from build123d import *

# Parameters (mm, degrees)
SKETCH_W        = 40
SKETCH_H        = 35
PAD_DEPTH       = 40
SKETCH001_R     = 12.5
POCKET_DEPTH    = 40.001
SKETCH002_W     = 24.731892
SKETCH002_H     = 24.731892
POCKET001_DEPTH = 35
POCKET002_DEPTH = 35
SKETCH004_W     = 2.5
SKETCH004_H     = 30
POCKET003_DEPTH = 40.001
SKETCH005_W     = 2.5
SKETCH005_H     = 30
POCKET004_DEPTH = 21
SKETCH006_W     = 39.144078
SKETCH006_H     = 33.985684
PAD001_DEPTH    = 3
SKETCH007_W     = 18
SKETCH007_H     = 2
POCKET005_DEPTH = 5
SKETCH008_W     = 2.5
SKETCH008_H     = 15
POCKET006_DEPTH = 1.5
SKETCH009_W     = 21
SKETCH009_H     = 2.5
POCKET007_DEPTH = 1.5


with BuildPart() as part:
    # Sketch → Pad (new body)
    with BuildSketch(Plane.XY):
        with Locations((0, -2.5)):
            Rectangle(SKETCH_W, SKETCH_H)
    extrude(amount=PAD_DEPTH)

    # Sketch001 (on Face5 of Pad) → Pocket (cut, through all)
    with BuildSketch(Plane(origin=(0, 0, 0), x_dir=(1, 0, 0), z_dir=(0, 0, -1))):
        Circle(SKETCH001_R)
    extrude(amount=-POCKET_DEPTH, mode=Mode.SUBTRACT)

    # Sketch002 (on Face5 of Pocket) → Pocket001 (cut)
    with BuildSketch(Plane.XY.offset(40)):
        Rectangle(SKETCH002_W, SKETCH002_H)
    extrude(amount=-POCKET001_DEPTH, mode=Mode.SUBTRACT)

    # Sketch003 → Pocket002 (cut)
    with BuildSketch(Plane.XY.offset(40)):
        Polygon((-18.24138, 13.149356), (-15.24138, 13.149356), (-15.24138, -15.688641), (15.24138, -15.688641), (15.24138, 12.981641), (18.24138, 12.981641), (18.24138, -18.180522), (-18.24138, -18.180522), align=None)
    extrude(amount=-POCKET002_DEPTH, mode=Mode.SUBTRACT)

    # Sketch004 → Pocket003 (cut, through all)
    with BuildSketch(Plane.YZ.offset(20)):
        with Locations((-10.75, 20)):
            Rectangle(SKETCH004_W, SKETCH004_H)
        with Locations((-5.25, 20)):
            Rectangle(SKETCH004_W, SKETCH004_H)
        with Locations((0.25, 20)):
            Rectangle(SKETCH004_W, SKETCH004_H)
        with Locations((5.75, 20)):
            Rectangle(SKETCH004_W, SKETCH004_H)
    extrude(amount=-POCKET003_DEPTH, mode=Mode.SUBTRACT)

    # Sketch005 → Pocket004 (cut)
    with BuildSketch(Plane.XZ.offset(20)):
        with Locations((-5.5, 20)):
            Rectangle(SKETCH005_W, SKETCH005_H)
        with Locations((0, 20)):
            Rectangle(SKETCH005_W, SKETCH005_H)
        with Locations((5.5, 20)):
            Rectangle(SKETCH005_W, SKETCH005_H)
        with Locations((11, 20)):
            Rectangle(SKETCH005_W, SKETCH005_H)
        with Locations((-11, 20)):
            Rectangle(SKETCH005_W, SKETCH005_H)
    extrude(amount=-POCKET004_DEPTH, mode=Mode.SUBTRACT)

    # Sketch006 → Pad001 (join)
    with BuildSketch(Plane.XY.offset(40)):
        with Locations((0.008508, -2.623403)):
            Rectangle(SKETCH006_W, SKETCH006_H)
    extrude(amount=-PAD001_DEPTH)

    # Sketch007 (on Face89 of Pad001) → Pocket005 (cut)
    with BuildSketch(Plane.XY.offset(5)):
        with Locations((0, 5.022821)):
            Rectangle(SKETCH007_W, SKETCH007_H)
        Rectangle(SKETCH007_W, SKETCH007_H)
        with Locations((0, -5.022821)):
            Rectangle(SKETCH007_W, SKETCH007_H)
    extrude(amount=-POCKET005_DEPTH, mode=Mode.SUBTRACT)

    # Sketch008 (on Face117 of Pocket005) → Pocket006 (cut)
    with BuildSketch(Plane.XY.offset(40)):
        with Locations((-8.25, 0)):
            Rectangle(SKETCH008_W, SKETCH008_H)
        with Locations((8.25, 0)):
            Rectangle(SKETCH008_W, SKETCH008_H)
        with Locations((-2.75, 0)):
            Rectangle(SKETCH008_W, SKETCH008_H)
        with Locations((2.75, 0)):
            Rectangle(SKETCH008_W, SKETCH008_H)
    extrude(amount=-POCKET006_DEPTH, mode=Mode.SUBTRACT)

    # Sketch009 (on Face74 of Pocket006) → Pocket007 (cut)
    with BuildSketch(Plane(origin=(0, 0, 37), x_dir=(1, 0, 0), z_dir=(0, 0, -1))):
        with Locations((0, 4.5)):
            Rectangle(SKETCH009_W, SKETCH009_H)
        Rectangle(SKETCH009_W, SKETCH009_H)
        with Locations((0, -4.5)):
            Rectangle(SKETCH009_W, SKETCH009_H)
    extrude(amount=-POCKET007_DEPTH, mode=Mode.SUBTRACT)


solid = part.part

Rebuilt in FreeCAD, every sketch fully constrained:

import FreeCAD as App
import Part
import Sketcher
from FreeCAD import Vector
Q = App.Units.Quantity


def add_polygon(sketch, points):
    """Adds a closed chain of lines whose ends are joined by coincident constraints."""
    first, n = sketch.GeometryCount, len(points)
    for a, b in zip(points, points[1:] + points[:1]):
        sketch.addGeometry(Part.LineSegment(App.Vector(*a, 0), App.Vector(*b, 0)), False)
    for i in range(n):
        sketch.addConstraint(Sketcher.Constraint("Coincident", first + i, 2, first + (i + 1) % n, 1))

doc = App.newDocument("Part")
body = doc.addObject("PartDesign::Body", "Body")

# Sketch on XY plane
sketch1 = body.newObject("Sketcher::SketchObject", "Sketch")
sketch1.AttachmentSupport = (doc.getObject("XY_Plane"), [""])
sketch1.MapMode = "FlatFace"
add_polygon(sketch1, [(-20, 15), (-20, -20), (20, -20), (20, 15)])  # lines 0-3
sketch1.addConstraint([
    Sketcher.Constraint("Vertical", 0),
    Sketcher.Constraint("Horizontal", 1),
    Sketcher.Constraint("Vertical", 2),
    Sketcher.Constraint("Horizontal", 3),
    Sketcher.Constraint("DistanceX", 1, 1, 1, 2, Q("40 mm")),
    Sketcher.Constraint("DistanceY", 0, 2, 0, 1, Q("35 mm")),
    Sketcher.Constraint("DistanceX", 0, 2, -1, 1, Q("20 mm")),
    Sketcher.Constraint("DistanceY", 0, 2, -1, 1, Q("20 mm")),
])
pad1 = body.newObject("PartDesign::Pad", "Pad")
pad1.Profile = sketch1
pad1.Length = 40

# Sketch on XY plane
sketch2 = body.newObject("Sketcher::SketchObject", "Sketch001")
sketch2.AttachmentSupport = (doc.getObject("XY_Plane"), [""])
sketch2.MapMode = "FlatFace"
sketch2.addGeometry(Part.Circle(Vector(0, 0, 0), Vector(0, 0, 1), 12.5), False)
sketch2.addConstraint([
    Sketcher.Constraint("Coincident", 0, 3, -1, 1),
    Sketcher.Constraint("Diameter", 0, Q("25 mm")),
])
pocket1 = body.newObject("PartDesign::Pocket", "Pocket")
pocket1.Profile = sketch2
pocket1.Type = "ThroughAll"
pocket1.Reversed = True

# Sketch on XY plane
sketch3 = body.newObject("Sketcher::SketchObject", "Sketch002")
sketch3.AttachmentSupport = (doc.getObject("XY_Plane"), [""])
sketch3.MapMode = "FlatFace"
sketch3.AttachmentOffset = App.Placement(Vector(0, 0, 40), App.Rotation())
add_polygon(sketch3, [(-12.365946, 12.365946), (-12.365946, -12.365946), (12.365946, -12.365946), (12.365946, 12.365946)])  # lines 0-3
sketch3.addConstraint([
    Sketcher.Constraint("Vertical", 0),
    Sketcher.Constraint("Horizontal", 1),
    Sketcher.Constraint("Vertical", 2),
    Sketcher.Constraint("Horizontal", 3),
    Sketcher.Constraint("Symmetric", 0, 2, 2, 2, -1, 1),
    Sketcher.Constraint("Equal", 3, 0),
    Sketcher.Constraint("DistanceX", 1, 1, 1, 2, Q("24.731892 mm")),
])
pocket2 = body.newObject("PartDesign::Pocket", "Pocket001")
pocket2.Profile = sketch3
pocket2.Length = 35

# Sketch on XY plane
sketch4 = body.newObject("Sketcher::SketchObject", "Sketch003")
sketch4.AttachmentSupport = (doc.getObject("XY_Plane"), [""])
sketch4.MapMode = "FlatFace"
sketch4.AttachmentOffset = App.Placement(Vector(0, 0, 40), App.Rotation())
add_polygon(sketch4, [(-15.24138, 13.149356), (-18.24138, 13.149356), (-18.24138, -18.180522), (18.24138, -18.180522), (18.24138, 12.981641), (15.24138, 12.981641), (15.24138, -15.688641), (-15.24138, -15.688641)])  # lines 0-7
sketch4.addConstraint([
    Sketcher.Constraint("Horizontal", 0),
    Sketcher.Constraint("Vertical", 1),
    Sketcher.Constraint("Horizontal", 2),
    Sketcher.Constraint("Vertical", 3),
    Sketcher.Constraint("Horizontal", 4),
    Sketcher.Constraint("Vertical", 5),
    Sketcher.Constraint("Horizontal", 6),
    Sketcher.Constraint("Vertical", 7),
    Sketcher.Constraint("Equal", 0, 4),
    Sketcher.Constraint("DistanceX", 0, 2, 0, 1, Q("3 mm")),
    Sketcher.Constraint("DistanceX", 2, 1, 2, 2, Q("36.48276 mm")),
    Sketcher.Constraint("DistanceY", 1, 2, 1, 1, Q("31.329878 mm")),
    Sketcher.Constraint("DistanceY", 5, 2, 5, 1, Q("28.670282 mm")),
    Sketcher.Constraint("DistanceY", 3, 1, 3, 2, Q("31.162163 mm")),
    Sketcher.Constraint("DistanceX", 0, 2, -1, 1, Q("18.24138 mm")),
    Sketcher.Constraint("DistanceY", 1, 2, -1, 1, Q("18.180522 mm")),
])
pocket3 = body.newObject("PartDesign::Pocket", "Pocket002")
pocket3.Profile = sketch4
pocket3.Length = 35

# Sketch on YZ plane
sketch5 = body.newObject("Sketcher::SketchObject", "Sketch004")
sketch5.AttachmentSupport = (doc.getObject("YZ_Plane"), [""])
sketch5.MapMode = "FlatFace"
sketch5.AttachmentOffset = App.Placement(Vector(0, 0, 20), App.Rotation())
add_polygon(sketch5, [(-12, 35), (-12, 5), (-9.5, 5), (-9.5, 35)])  # lines 0-3
add_polygon(sketch5, [(-6.5, 35), (-6.5, 5), (-4, 5), (-4, 35)])  # lines 4-7
add_polygon(sketch5, [(-1, 35), (-1, 5), (1.5, 5), (1.5, 35)])  # lines 8-11
add_polygon(sketch5, [(4.5, 35), (4.5, 5), (7, 5), (7, 35)])  # lines 12-15
sketch5.addConstraint([
    Sketcher.Constraint("Vertical", 0),
    Sketcher.Constraint("Horizontal", 1),
    Sketcher.Constraint("Vertical", 2),
    Sketcher.Constraint("Horizontal", 3),
    Sketcher.Constraint("Vertical", 4),
    Sketcher.Constraint("Horizontal", 5),
    Sketcher.Constraint("Vertical", 6),
    Sketcher.Constraint("Horizontal", 7),
    Sketcher.Constraint("Vertical", 8),
    Sketcher.Constraint("Horizontal", 9),
    Sketcher.Constraint("Vertical", 10),
    Sketcher.Constraint("Horizontal", 11),
    Sketcher.Constraint("Vertical", 12),
    Sketcher.Constraint("Horizontal", 13),
    Sketcher.Constraint("Vertical", 14),
    Sketcher.Constraint("Horizontal", 15),
    Sketcher.Constraint("Horizontal", 1, 2, 4, 2),
    Sketcher.Constraint("Horizontal", 3, 2, 6, 2),
    Sketcher.Constraint("Horizontal", 5, 2, 8, 2),
    Sketcher.Constraint("Horizontal", 7, 2, 10, 2),
    Sketcher.Constraint("Horizontal", 9, 2, 12, 2),
    Sketcher.Constraint("Horizontal", 11, 2, 14, 2),
    Sketcher.Constraint("Equal", 3, 5),
    Sketcher.Constraint("Equal", 7, 9),
    Sketcher.Constraint("Equal", 11, 13),
    Sketcher.Constraint("DistanceY", 0, 2, 0, 1, Q("30 mm")),
    Sketcher.Constraint("DistanceX", 1, 1, 1, 2, Q("2.5 mm")),
    Sketcher.Constraint("DistanceX", 0, 2, -1, 1, Q("12 mm")),
    Sketcher.Constraint("DistanceY", -1, 1, 0, 2, Q("5 mm")),
    Sketcher.Constraint("DistanceX", 5, 2, -1, 1, Q("4 mm")),
    Sketcher.Constraint("DistanceX", 8, 2, -1, 1, Q("1 mm")),
    Sketcher.Constraint("DistanceX", -1, 1, 13, 2, Q("7 mm")),
])
pocket4 = body.newObject("PartDesign::Pocket", "Pocket003")
pocket4.Profile = sketch5
pocket4.Type = "ThroughAll"

# Sketch on XZ plane
sketch6 = body.newObject("Sketcher::SketchObject", "Sketch005")
sketch6.AttachmentSupport = (doc.getObject("XZ_Plane"), [""])
sketch6.MapMode = "FlatFace"
sketch6.AttachmentOffset = App.Placement(Vector(0, 0, 20), App.Rotation())
add_polygon(sketch6, [(-6.75, 35), (-6.75, 5), (-4.25, 5), (-4.25, 35)])  # lines 0-3
add_polygon(sketch6, [(-1.25, 35), (-1.25, 5), (1.25, 5), (1.25, 35)])  # lines 4-7
add_polygon(sketch6, [(4.25, 35), (4.25, 5), (6.75, 5), (6.75, 35)])  # lines 8-11
add_polygon(sketch6, [(9.75, 35), (9.75, 5), (12.25, 5), (12.25, 35)])  # lines 12-15
add_polygon(sketch6, [(-12.25, 35), (-12.25, 5), (-9.75, 5), (-9.75, 35)])  # lines 16-19
sketch6.addConstraint([
    Sketcher.Constraint("Vertical", 0),
    Sketcher.Constraint("Horizontal", 1),
    Sketcher.Constraint("Vertical", 2),
    Sketcher.Constraint("Horizontal", 3),
    Sketcher.Constraint("Vertical", 4),
    Sketcher.Constraint("Horizontal", 5),
    Sketcher.Constraint("Vertical", 6),
    Sketcher.Constraint("Horizontal", 7),
    Sketcher.Constraint("Vertical", 8),
    Sketcher.Constraint("Horizontal", 9),
    Sketcher.Constraint("Vertical", 10),
    Sketcher.Constraint("Horizontal", 11),
    Sketcher.Constraint("Vertical", 12),
    Sketcher.Constraint("Horizontal", 13),
    Sketcher.Constraint("Vertical", 14),
    Sketcher.Constraint("Horizontal", 15),
    Sketcher.Constraint("Vertical", 16),
    Sketcher.Constraint("Horizontal", 17),
    Sketcher.Constraint("Vertical", 18),
    Sketcher.Constraint("Horizontal", 19),
    Sketcher.Constraint("Symmetric", 1, 2, 8, 2, -2),
    Sketcher.Constraint("Symmetric", 3, 2, 10, 2, -2),
    Sketcher.Constraint("Symmetric", 13, 2, 16, 2, -2),
    Sketcher.Constraint("Symmetric", 15, 2, 18, 2, -2),
    Sketcher.Constraint("Horizontal", 1, 2, 4, 2),
    Sketcher.Constraint("Horizontal", 3, 2, 6, 2),
    Sketcher.Constraint("Horizontal", 9, 2, 12, 2),
    Sketcher.Constraint("Horizontal", 11, 2, 14, 2),
    Sketcher.Constraint("Equal", 3, 5),
    Sketcher.Constraint("Equal", 11, 13),
    Sketcher.Constraint("DistanceY", 0, 2, 0, 1, Q("30 mm")),
    Sketcher.Constraint("DistanceX", 1, 1, 1, 2, Q("2.5 mm")),
    Sketcher.Constraint("DistanceY", -1, 1, 0, 2, Q("5 mm")),
    Sketcher.Constraint("DistanceX", 1, 2, 4, 2, Q("3 mm")),
    Sketcher.Constraint("DistanceX", 5, 2, 8, 2, Q("3 mm")),
    Sketcher.Constraint("DistanceX", 9, 2, 12, 2, Q("3 mm")),
])
pocket5 = body.newObject("PartDesign::Pocket", "Pocket004")
pocket5.Profile = sketch6
pocket5.Length = 21

# Sketch on XY plane
sketch7 = body.newObject("Sketcher::SketchObject", "Sketch006")
sketch7.AttachmentSupport = (doc.getObject("XY_Plane"), [""])
sketch7.MapMode = "FlatFace"
sketch7.AttachmentOffset = App.Placement(Vector(0, 0, 40), App.Rotation())
add_polygon(sketch7, [(-19.563531, 14.369439), (-19.563531, -19.616245), (19.580547, -19.616245), (19.580547, 14.369439)])  # lines 0-3
sketch7.addConstraint([
    Sketcher.Constraint("Vertical", 0),
    Sketcher.Constraint("Horizontal", 1),
    Sketcher.Constraint("Vertical", 2),
    Sketcher.Constraint("Horizontal", 3),
    Sketcher.Constraint("DistanceX", 1, 1, 1, 2, Q("39.144078 mm")),
    Sketcher.Constraint("DistanceY", 0, 2, 0, 1, Q("33.985684 mm")),
    Sketcher.Constraint("DistanceX", 0, 2, -1, 1, Q("19.563531 mm")),
    Sketcher.Constraint("DistanceY", -1, 1, 2, 2, Q("14.369439 mm")),
])
pad2 = body.newObject("PartDesign::Pad", "Pad001")
pad2.Profile = sketch7
pad2.Length = 3
pad2.Reversed = True

# Sketch on XY plane
sketch8 = body.newObject("Sketcher::SketchObject", "Sketch007")
sketch8.AttachmentSupport = (doc.getObject("XY_Plane"), [""])
sketch8.MapMode = "FlatFace"
sketch8.AttachmentOffset = App.Placement(Vector(0, 0, 5), App.Rotation())
add_polygon(sketch8, [(-9, 6.022821), (-9, 4.022821), (9, 4.022821), (9, 6.022821)])  # lines 0-3
add_polygon(sketch8, [(-9, 1), (-9, -1), (9, -1), (9, 1)])  # lines 4-7
add_polygon(sketch8, [(-9, -4.022821), (-9, -6.022821), (9, -6.022821), (9, -4.022821)])  # lines 8-11
sketch8.addConstraint([
    Sketcher.Constraint("Vertical", 0),
    Sketcher.Constraint("Horizontal", 1),
    Sketcher.Constraint("Vertical", 2),
    Sketcher.Constraint("Horizontal", 3),
    Sketcher.Constraint("Vertical", 4),
    Sketcher.Constraint("Horizontal", 5),
    Sketcher.Constraint("Vertical", 6),
    Sketcher.Constraint("Horizontal", 7),
    Sketcher.Constraint("Vertical", 8),
    Sketcher.Constraint("Horizontal", 9),
    Sketcher.Constraint("Vertical", 10),
    Sketcher.Constraint("Horizontal", 11),
    Sketcher.Constraint("Symmetric", 4, 2, 6, 2, -1, 1),
    Sketcher.Constraint("Symmetric", 2, 2, 8, 2, -1, 1),
    Sketcher.Constraint("Symmetric", 0, 2, 10, 2, -1, 1),
    Sketcher.Constraint("Vertical", 3, 2, 4, 2),
    Sketcher.Constraint("Vertical", 2, 2, 5, 2),
    Sketcher.Constraint("Equal", 2, 4),
    Sketcher.Constraint("DistanceX", 1, 1, 1, 2, Q("18 mm")),
    Sketcher.Constraint("DistanceY", 0, 2, 0, 1, Q("2 mm")),
    Sketcher.Constraint("DistanceY", -1, 1, 0, 2, Q("4.022821 mm")),
])
pocket6 = body.newObject("PartDesign::Pocket", "Pocket005")
pocket6.Profile = sketch8
pocket6.Length = 5

# Sketch on XY plane
sketch9 = body.newObject("Sketcher::SketchObject", "Sketch008")
sketch9.AttachmentSupport = (doc.getObject("XY_Plane"), [""])
sketch9.MapMode = "FlatFace"
sketch9.AttachmentOffset = App.Placement(Vector(0, 0, 40), App.Rotation())
add_polygon(sketch9, [(-9.5, 7.5), (-9.5, -7.5), (-7, -7.5), (-7, 7.5)])  # lines 0-3
add_polygon(sketch9, [(7, 7.5), (7, -7.5), (9.5, -7.5), (9.5, 7.5)])  # lines 4-7
add_polygon(sketch9, [(-4, 7.5), (-4, -7.5), (-1.5, -7.5), (-1.5, 7.5)])  # lines 8-11
add_polygon(sketch9, [(1.5, 7.5), (1.5, -7.5), (4, -7.5), (4, 7.5)])  # lines 12-15
sketch9.addConstraint([
    Sketcher.Constraint("Vertical", 0),
    Sketcher.Constraint("Horizontal", 1),
    Sketcher.Constraint("Vertical", 2),
    Sketcher.Constraint("Horizontal", 3),
    Sketcher.Constraint("Vertical", 4),
    Sketcher.Constraint("Horizontal", 5),
    Sketcher.Constraint("Vertical", 6),
    Sketcher.Constraint("Horizontal", 7),
    Sketcher.Constraint("Vertical", 8),
    Sketcher.Constraint("Horizontal", 9),
    Sketcher.Constraint("Vertical", 10),
    Sketcher.Constraint("Horizontal", 11),
    Sketcher.Constraint("Vertical", 12),
    Sketcher.Constraint("Horizontal", 13),
    Sketcher.Constraint("Vertical", 14),
    Sketcher.Constraint("Horizontal", 15),
    Sketcher.Constraint("Symmetric", 2, 2, 4, 2, -1, 1),
    Sketcher.Constraint("Symmetric", 0, 2, 6, 2, -1, 1),
    Sketcher.Constraint("Symmetric", 10, 2, 12, 2, -1, 1),
    Sketcher.Constraint("Symmetric", 8, 2, 14, 2, -1, 1),
    Sketcher.Constraint("Horizontal", 1, 2, 4, 2),
    Sketcher.Constraint("Horizontal", 5, 2, 8, 2),
    Sketcher.Constraint("Horizontal", 7, 2, 10, 2),
    Sketcher.Constraint("Equal", 7, 9),
    Sketcher.Constraint("DistanceY", 0, 2, 0, 1, Q("15 mm")),
    Sketcher.Constraint("DistanceX", 1, 1, 1, 2, Q("2.5 mm")),
    Sketcher.Constraint("DistanceX", 1, 2, -1, 1, Q("7 mm")),
    Sketcher.Constraint("DistanceX", 8, 2, -1, 1, Q("4 mm")),
])
pocket7 = body.newObject("PartDesign::Pocket", "Pocket006")
pocket7.Profile = sketch9
pocket7.Length = 1.5

# Sketch on XY plane
sketch10 = body.newObject("Sketcher::SketchObject", "Sketch009")
sketch10.AttachmentSupport = (doc.getObject("XY_Plane"), [""])
sketch10.MapMode = "FlatFace"
sketch10.AttachmentOffset = App.Placement(Vector(0, 0, 37), App.Rotation())
add_polygon(sketch10, [(-10.5, -5.75), (-10.5, -3.25), (10.5, -3.25), (10.5, -5.75)])  # lines 0-3
add_polygon(sketch10, [(-10.5, -1.25), (-10.5, 1.25), (10.5, 1.25), (10.5, -1.25)])  # lines 4-7
add_polygon(sketch10, [(-10.5, 3.25), (-10.5, 5.75), (10.5, 5.75), (10.5, 3.25)])  # lines 8-11
sketch10.addConstraint([
    Sketcher.Constraint("Vertical", 0),
    Sketcher.Constraint("Horizontal", 1),
    Sketcher.Constraint("Vertical", 2),
    Sketcher.Constraint("Horizontal", 3),
    Sketcher.Constraint("Vertical", 4),
    Sketcher.Constraint("Horizontal", 5),
    Sketcher.Constraint("Vertical", 6),
    Sketcher.Constraint("Horizontal", 7),
    Sketcher.Constraint("Vertical", 8),
    Sketcher.Constraint("Horizontal", 9),
    Sketcher.Constraint("Vertical", 10),
    Sketcher.Constraint("Horizontal", 11),
    Sketcher.Constraint("Symmetric", 4, 2, 6, 2, -1, 1),
    Sketcher.Constraint("Symmetric", 2, 2, 8, 2, -1, 1),
    Sketcher.Constraint("Symmetric", 0, 2, 10, 2, -1, 1),
    Sketcher.Constraint("Vertical", 3, 2, 4, 2),
    Sketcher.Constraint("Vertical", 2, 2, 5, 2),
    Sketcher.Constraint("Equal", 2, 4),
    Sketcher.Constraint("DistanceX", 1, 1, 1, 2, Q("21 mm")),
    Sketcher.Constraint("DistanceY", 0, 1, 0, 2, Q("2.5 mm")),
    Sketcher.Constraint("DistanceY", 3, 2, 4, 2, Q("7 mm")),
])
pocket8 = body.newObject("PartDesign::Pocket", "Pocket007")
pocket8.Profile = sketch10
pocket8.Length = 1.5
pocket8.Reversed = True

doc.recompute()
